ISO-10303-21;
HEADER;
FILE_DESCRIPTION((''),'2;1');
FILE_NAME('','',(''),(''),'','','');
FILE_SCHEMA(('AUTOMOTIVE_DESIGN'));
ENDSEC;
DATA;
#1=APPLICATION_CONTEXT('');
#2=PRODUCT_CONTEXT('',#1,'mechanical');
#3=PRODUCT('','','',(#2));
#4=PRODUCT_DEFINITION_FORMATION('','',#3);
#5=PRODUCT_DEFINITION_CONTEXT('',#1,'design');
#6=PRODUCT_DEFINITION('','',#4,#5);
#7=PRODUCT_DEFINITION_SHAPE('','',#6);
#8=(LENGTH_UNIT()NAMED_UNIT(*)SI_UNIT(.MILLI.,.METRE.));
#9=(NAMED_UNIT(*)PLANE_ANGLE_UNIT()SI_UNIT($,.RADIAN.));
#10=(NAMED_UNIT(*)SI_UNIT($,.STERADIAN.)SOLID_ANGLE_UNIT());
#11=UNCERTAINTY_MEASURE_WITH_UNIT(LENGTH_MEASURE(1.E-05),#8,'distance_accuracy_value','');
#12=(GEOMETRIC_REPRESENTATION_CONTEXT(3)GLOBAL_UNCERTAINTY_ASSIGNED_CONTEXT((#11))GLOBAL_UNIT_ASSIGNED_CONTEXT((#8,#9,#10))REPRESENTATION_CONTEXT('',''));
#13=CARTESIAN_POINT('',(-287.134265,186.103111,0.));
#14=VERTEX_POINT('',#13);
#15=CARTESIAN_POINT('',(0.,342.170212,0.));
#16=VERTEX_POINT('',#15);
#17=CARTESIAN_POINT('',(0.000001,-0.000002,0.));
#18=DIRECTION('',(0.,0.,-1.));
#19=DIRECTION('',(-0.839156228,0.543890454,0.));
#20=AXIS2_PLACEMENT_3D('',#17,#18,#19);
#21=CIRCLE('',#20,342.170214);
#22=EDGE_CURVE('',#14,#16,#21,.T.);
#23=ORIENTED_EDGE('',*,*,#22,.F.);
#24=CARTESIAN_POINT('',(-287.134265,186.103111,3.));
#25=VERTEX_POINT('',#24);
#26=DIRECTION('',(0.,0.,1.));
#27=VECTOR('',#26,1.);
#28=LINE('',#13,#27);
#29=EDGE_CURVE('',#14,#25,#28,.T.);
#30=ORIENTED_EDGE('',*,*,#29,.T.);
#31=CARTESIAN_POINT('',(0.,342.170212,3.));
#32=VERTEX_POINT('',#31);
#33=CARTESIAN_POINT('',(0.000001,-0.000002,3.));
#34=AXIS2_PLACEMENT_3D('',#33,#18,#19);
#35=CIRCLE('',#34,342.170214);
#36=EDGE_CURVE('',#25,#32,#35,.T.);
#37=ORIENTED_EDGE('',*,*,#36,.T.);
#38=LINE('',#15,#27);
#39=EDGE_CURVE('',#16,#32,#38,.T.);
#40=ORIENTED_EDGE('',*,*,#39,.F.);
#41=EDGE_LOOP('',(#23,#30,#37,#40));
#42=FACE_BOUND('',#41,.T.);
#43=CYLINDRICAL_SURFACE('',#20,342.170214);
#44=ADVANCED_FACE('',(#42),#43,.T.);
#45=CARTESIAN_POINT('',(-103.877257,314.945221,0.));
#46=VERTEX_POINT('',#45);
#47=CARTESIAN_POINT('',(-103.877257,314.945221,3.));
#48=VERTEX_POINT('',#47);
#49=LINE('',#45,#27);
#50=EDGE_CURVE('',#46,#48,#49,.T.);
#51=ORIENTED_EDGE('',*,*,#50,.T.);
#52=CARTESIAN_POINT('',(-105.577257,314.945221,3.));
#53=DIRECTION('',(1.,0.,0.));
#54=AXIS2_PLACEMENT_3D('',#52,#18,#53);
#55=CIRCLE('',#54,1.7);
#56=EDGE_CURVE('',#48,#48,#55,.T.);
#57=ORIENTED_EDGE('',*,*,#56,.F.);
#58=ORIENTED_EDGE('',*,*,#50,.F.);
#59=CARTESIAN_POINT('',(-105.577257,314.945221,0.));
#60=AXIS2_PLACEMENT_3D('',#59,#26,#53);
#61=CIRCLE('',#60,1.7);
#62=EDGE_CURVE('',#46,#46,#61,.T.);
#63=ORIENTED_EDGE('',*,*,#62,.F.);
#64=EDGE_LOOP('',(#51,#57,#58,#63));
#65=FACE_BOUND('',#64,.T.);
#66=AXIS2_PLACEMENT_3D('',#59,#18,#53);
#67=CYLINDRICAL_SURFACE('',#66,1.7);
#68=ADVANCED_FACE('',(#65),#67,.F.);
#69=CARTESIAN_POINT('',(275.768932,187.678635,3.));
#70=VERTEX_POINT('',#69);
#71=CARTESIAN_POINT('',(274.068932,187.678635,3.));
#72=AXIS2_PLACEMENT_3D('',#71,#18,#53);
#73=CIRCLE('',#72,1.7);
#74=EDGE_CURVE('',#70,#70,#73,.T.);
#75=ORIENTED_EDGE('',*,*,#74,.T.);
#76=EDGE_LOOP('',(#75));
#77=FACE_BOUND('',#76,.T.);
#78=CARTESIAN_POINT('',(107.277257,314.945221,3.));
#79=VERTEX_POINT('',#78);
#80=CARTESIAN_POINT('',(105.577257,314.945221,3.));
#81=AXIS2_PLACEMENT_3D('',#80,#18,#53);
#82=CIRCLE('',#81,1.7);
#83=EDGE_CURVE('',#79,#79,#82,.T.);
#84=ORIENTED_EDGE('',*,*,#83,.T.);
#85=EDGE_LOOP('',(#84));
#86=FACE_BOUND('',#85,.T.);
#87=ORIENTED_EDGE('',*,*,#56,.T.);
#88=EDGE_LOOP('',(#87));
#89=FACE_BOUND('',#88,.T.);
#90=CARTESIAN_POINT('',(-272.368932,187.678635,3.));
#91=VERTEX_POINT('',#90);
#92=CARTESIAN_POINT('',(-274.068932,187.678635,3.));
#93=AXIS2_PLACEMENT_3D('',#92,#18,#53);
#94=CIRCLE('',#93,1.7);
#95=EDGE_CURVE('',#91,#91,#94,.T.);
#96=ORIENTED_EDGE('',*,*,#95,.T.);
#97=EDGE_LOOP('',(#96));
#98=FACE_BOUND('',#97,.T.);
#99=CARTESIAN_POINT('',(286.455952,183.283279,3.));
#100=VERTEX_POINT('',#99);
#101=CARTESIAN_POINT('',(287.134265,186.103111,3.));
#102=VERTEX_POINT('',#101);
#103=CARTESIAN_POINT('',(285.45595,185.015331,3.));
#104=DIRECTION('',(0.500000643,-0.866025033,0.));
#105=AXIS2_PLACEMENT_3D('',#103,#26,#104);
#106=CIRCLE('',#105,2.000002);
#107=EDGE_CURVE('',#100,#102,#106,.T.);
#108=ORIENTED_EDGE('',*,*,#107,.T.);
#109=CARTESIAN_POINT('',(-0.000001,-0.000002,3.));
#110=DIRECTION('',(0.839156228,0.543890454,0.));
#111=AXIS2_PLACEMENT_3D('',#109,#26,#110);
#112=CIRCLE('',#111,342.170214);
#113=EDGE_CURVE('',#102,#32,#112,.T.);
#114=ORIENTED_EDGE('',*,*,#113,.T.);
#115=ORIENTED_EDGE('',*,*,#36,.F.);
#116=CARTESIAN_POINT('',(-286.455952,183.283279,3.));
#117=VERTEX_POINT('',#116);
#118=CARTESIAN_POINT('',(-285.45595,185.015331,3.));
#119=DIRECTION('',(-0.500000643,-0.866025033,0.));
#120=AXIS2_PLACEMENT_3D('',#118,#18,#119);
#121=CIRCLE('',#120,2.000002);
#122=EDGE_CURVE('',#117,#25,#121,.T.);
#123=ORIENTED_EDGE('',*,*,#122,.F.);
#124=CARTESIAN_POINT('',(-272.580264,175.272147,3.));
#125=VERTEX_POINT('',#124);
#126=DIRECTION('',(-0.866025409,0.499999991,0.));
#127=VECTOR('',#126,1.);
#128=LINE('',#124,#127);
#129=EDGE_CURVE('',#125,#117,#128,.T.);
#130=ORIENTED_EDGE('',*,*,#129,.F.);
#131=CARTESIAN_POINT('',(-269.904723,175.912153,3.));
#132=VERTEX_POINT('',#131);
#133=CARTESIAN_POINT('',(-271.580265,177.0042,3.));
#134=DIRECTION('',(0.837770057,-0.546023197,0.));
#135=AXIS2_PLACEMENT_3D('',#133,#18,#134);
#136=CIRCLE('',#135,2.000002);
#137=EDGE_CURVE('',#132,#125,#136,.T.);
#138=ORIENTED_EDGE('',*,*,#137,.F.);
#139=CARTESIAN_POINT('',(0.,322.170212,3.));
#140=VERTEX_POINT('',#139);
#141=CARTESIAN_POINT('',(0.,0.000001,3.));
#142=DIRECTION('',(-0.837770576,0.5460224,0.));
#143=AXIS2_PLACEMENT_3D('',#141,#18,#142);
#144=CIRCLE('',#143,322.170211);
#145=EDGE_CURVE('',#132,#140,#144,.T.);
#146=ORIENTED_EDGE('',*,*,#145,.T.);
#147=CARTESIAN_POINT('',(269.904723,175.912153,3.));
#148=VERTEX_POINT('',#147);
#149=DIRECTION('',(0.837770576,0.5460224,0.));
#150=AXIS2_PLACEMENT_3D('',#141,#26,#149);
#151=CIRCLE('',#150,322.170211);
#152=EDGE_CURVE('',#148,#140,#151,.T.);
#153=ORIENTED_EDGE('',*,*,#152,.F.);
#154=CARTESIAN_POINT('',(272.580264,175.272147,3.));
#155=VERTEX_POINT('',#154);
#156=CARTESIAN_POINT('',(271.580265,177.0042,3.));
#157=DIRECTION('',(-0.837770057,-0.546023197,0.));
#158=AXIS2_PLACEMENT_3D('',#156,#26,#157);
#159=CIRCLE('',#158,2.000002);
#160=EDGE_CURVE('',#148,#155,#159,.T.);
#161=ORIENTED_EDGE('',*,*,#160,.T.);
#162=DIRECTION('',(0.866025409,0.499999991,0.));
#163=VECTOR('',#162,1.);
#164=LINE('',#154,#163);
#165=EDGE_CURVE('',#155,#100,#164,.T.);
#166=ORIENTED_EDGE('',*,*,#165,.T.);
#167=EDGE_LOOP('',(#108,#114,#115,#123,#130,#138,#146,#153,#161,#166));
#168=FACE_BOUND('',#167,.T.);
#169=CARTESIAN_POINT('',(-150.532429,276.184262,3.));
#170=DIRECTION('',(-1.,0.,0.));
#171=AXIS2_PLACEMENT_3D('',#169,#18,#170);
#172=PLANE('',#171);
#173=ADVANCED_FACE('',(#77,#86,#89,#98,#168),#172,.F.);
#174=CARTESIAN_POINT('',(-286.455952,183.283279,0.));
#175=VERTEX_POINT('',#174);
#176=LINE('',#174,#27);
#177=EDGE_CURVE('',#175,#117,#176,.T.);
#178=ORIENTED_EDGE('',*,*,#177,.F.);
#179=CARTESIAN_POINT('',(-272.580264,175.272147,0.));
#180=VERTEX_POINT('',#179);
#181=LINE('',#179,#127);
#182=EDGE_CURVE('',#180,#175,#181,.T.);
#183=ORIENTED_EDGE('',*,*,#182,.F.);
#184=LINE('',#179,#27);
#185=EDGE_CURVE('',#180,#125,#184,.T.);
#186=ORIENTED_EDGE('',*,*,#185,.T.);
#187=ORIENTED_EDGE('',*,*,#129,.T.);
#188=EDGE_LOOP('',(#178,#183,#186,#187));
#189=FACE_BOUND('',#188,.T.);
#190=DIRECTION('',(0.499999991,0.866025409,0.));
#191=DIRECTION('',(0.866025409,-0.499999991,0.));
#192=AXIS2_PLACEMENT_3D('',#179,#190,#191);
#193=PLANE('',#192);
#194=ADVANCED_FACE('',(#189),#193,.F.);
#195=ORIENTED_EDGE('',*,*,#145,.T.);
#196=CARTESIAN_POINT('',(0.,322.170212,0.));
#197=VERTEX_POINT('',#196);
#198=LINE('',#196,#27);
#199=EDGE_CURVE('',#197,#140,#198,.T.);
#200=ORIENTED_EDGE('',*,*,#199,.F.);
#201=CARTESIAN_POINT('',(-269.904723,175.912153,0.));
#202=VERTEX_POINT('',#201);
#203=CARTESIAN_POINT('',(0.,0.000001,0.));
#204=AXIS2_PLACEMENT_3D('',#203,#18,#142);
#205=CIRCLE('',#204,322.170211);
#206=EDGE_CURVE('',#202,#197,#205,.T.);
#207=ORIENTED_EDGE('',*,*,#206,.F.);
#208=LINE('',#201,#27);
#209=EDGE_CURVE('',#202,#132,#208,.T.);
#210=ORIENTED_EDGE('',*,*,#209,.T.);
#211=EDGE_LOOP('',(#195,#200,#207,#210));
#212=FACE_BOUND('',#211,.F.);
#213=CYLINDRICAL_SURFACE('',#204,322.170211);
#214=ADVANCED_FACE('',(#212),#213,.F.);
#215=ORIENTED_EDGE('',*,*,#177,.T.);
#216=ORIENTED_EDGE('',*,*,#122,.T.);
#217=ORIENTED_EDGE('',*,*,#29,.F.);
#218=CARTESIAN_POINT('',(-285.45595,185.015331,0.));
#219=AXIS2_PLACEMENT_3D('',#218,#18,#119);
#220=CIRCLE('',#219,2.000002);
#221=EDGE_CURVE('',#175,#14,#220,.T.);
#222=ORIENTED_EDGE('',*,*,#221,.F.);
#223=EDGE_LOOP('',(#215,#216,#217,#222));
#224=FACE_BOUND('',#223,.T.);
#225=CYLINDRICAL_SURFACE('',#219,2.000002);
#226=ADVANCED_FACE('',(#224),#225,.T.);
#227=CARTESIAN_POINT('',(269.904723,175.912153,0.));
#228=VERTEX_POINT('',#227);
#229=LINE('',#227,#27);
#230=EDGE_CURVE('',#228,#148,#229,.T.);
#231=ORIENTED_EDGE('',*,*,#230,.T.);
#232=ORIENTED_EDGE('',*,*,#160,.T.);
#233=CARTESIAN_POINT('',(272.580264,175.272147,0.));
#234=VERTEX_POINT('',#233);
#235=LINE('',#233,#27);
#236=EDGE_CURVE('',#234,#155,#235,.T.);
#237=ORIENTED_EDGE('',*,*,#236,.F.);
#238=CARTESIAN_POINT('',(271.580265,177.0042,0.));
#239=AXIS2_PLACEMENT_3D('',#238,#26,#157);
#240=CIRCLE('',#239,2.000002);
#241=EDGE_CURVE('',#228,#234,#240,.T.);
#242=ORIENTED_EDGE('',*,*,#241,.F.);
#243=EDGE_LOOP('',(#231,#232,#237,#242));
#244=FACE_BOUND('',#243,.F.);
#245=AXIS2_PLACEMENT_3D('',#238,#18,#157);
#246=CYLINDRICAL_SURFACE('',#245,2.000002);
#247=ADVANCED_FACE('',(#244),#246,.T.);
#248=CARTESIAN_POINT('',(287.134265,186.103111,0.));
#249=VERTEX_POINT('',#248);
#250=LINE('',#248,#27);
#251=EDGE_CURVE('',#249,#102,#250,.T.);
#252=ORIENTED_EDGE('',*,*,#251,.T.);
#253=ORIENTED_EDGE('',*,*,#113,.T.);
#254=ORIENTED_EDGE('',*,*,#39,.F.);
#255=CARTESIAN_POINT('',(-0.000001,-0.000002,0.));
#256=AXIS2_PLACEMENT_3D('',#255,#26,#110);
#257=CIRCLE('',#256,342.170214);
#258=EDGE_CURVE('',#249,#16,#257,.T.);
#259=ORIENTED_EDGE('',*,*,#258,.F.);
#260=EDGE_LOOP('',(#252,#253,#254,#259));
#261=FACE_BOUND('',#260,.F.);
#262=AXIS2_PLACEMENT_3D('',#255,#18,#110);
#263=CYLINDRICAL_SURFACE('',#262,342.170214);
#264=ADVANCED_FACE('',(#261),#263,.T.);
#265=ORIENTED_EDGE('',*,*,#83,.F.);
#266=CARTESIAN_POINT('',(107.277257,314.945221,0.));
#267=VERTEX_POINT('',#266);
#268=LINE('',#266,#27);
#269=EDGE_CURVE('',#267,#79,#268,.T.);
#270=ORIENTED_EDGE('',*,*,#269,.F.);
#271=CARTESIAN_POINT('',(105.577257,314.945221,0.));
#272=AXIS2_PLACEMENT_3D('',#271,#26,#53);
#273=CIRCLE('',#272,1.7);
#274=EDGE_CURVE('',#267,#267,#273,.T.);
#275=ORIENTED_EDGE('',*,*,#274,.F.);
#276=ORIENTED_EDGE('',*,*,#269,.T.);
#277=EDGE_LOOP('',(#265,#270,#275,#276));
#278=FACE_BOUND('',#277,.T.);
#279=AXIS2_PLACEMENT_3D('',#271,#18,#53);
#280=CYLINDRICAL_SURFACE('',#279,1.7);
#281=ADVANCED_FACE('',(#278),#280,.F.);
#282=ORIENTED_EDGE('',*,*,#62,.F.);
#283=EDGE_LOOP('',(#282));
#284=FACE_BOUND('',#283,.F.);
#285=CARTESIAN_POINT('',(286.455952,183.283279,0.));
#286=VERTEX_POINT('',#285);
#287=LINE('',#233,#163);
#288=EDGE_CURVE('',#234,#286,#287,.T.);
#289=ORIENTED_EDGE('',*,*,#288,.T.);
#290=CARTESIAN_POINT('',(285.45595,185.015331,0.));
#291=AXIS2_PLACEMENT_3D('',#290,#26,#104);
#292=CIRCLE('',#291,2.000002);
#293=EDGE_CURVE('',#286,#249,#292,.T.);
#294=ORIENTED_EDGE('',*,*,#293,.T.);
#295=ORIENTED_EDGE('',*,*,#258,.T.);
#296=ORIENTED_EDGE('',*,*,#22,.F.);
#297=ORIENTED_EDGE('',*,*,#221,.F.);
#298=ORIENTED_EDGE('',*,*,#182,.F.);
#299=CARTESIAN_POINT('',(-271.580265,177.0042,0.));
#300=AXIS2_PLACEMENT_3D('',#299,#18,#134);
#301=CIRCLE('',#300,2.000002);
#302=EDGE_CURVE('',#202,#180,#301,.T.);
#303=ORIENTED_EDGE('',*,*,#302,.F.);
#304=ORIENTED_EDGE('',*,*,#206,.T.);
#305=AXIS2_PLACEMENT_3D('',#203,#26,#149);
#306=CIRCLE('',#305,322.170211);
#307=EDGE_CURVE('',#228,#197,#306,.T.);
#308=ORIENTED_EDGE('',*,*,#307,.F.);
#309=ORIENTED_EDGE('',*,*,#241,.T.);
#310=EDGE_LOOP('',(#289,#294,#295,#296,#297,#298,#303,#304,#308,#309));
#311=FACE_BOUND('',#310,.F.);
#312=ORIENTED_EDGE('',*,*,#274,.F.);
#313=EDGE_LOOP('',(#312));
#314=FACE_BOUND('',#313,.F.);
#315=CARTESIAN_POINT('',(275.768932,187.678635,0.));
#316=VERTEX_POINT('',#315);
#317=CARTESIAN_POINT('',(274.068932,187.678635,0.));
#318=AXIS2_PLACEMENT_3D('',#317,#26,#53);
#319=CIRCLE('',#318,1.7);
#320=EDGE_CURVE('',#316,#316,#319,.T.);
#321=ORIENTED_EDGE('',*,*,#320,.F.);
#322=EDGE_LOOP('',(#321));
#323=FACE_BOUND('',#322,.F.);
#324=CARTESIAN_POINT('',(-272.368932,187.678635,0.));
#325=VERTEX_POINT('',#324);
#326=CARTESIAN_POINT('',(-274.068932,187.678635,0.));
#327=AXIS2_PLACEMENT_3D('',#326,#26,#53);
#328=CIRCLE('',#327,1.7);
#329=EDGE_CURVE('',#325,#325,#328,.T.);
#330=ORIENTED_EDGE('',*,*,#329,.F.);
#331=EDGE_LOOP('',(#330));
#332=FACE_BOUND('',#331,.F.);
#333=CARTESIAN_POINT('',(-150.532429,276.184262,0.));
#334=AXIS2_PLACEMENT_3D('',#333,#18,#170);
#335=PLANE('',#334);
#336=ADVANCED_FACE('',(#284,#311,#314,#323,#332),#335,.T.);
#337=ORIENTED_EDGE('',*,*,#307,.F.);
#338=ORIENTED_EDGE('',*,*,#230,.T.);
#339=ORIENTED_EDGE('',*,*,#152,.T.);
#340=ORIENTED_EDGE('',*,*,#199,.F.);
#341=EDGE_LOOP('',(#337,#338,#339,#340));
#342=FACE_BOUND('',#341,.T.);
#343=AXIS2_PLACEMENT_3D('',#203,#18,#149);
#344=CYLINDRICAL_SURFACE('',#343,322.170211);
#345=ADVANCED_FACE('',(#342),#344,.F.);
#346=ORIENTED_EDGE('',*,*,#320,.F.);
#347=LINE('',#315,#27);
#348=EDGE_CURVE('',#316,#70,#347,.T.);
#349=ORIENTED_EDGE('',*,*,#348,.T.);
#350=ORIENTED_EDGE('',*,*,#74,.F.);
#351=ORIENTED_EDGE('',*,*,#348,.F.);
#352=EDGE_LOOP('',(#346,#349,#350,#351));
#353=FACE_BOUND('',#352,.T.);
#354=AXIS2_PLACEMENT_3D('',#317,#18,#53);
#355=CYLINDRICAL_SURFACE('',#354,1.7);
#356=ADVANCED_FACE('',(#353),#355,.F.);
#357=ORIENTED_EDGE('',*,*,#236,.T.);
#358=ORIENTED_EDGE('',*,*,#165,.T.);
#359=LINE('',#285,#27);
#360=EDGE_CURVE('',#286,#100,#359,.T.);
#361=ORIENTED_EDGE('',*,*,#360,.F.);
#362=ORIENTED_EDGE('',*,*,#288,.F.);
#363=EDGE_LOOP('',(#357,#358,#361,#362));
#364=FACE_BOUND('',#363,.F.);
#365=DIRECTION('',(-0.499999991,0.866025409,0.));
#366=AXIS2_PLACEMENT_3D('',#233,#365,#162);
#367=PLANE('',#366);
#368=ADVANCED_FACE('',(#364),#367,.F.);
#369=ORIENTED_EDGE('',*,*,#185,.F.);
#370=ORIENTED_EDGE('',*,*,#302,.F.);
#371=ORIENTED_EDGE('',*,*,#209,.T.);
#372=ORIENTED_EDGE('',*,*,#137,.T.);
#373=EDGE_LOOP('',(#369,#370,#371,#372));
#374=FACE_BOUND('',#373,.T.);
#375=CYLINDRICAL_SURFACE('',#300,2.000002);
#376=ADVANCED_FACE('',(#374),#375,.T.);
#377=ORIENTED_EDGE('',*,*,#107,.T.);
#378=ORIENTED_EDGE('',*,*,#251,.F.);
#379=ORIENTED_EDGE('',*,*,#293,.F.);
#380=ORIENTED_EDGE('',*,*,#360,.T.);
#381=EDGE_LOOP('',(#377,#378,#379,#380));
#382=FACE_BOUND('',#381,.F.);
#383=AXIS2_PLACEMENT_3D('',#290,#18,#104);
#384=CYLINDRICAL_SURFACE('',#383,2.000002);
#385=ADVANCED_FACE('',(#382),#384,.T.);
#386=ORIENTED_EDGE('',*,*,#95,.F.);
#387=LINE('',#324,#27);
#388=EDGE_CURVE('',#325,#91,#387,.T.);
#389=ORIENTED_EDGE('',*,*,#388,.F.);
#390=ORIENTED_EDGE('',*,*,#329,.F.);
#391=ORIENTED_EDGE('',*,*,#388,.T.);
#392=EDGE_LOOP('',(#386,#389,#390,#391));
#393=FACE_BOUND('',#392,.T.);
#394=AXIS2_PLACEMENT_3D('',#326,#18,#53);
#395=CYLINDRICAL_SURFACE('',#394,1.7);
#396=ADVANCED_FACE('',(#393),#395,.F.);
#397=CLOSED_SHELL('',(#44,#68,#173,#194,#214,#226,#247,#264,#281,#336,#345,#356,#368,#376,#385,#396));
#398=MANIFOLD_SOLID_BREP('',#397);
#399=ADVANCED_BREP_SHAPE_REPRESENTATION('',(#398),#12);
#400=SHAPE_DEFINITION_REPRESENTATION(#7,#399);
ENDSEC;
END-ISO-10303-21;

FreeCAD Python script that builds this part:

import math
import FreeCAD as App
import Part
import Sketcher

V = App.Vector
Q = App.Units.Quantity

doc = App.newDocument("Part")
body = doc.addObject("PartDesign::Body", "Body")

# Sketch on XY plane
sketch1 = body.newObject("Sketcher::SketchObject", "Sketch")
sketch1.AttachmentSupport = (doc.getObject("XY_Plane"), [""])
sketch1.MapMode = "FlatFace"
sketch1.addGeometry([
    Part.ArcOfCircle(Part.Circle(V(0, 0, 0), V(0, 0, 1), 322.2), math.radians(33), math.radians(90)),  # 0
    Part.ArcOfCircle(Part.Circle(V(271.6, 177, 0), V(0, 0, 1), 2), math.radians(-147), math.radians(-60)),  # 1
    Part.LineSegment(V(272.6, 175.3, 0), V(286.5, 183.3, 0)),  # 2
    Part.ArcOfCircle(Part.Circle(V(285.5, 185, 0), V(0, 0, 1), 2), math.radians(-60), math.radians(33)),  # 3
    Part.ArcOfCircle(Part.Circle(V(0, 0, 0), V(0, 0, 1), 342.2), math.radians(33), math.radians(90)),  # 4
    Part.LineSegment(V(0, 342.2, 0), V(0, 322.2, 0)),  # 5
], False)
sketch1.addConstraint([
    Sketcher.Constraint("Tangent", 0, 1, 1, 1),
    Sketcher.Constraint("Tangent", 1, 2, 2, 1),
    Sketcher.Constraint("Tangent", 2, 2, 3, 1),
    Sketcher.Constraint("Tangent", 3, 2, 4, 1),
    Sketcher.Constraint("Coincident", 4, 2, 5, 1),
    Sketcher.Constraint("Coincident", 5, 2, 0, 2),
    Sketcher.Constraint("Vertical", 5),
    Sketcher.Constraint("Coincident", 0, 3, -1, 1),
    Sketcher.Constraint("Coincident", 4, 3, -1, 1),
    Sketcher.Constraint("Equal", 1, 3),
    Sketcher.Constraint("PointOnObject", 4, 2, -2),
    Sketcher.Constraint("Radius", 1, Q("2.000002 mm")),
    Sketcher.Constraint("DistanceY", 5, 2, 5, 1, Q("20 mm")),
    Sketcher.Constraint("Angle", 2, Q("29.999999 deg")),
    Sketcher.Constraint("Radius", 0, Q("322.170211 mm")),
    Sketcher.Constraint("DistanceY", -1, 1, 1, 3, Q("177.0042 mm")),
])
pad1 = body.newObject("PartDesign::Pad", "Pad")
pad1.Profile = sketch1
pad1.Length = 3
doc.recompute()

mirrored = body.newObject("PartDesign::Mirrored", "Mirrored")
mirrored.Originals = [pad1]
mirrored.MirrorPlane = (doc.getObject("YZ_Plane"), [""])
body.Tip = mirrored

# Sketch on XY plane
sketch2 = body.newObject("Sketcher::SketchObject", "Sketch001")
sketch2.AttachmentSupport = (doc.getObject("XY_Plane"), [""])
sketch2.MapMode = "FlatFace"
sketch2.addGeometry([
    Part.Circle(V(105.6, 314.9, 0), V(0, 0, 1), 1.7),
    Part.Circle(V(274.1, 187.7, 0), V(0, 0, 1), 1.7),
    Part.Circle(V(-105.6, 314.9, 0), V(0, 0, 1), 1.7),
    Part.Circle(V(-274.1, 187.7, 0), V(0, 0, 1), 1.7),
], False)
sketch2.addConstraint([
    Sketcher.Constraint("Equal", 0, 1),
    Sketcher.Constraint("Equal", 1, 2),
    Sketcher.Constraint("Equal", 2, 3),
    Sketcher.Constraint("Symmetric", 0, 3, 2, 3, -2),
    Sketcher.Constraint("Symmetric", 1, 3, 3, 3, -2),
    Sketcher.Constraint("Diameter", 0, Q("3.4 mm")),
    Sketcher.Constraint("DistanceY", -1, 1, 0, 3, Q("314.945221 mm")),
    Sketcher.Constraint("DistanceX", -1, 1, 1, 3, Q("274.068932 mm")),
    Sketcher.Constraint("DistanceX", 2, 3, 1, 3, Q("379.646189 mm")),
    Sketcher.Constraint("DistanceY", -1, 1, 1, 3, Q("187.678635 mm")),
])
pocket1 = body.newObject("PartDesign::Pocket", "Pocket")
pocket1.Profile = sketch2
pocket1.Type = "ThroughAll"
pocket1.Midplane = True

doc.recompute()
